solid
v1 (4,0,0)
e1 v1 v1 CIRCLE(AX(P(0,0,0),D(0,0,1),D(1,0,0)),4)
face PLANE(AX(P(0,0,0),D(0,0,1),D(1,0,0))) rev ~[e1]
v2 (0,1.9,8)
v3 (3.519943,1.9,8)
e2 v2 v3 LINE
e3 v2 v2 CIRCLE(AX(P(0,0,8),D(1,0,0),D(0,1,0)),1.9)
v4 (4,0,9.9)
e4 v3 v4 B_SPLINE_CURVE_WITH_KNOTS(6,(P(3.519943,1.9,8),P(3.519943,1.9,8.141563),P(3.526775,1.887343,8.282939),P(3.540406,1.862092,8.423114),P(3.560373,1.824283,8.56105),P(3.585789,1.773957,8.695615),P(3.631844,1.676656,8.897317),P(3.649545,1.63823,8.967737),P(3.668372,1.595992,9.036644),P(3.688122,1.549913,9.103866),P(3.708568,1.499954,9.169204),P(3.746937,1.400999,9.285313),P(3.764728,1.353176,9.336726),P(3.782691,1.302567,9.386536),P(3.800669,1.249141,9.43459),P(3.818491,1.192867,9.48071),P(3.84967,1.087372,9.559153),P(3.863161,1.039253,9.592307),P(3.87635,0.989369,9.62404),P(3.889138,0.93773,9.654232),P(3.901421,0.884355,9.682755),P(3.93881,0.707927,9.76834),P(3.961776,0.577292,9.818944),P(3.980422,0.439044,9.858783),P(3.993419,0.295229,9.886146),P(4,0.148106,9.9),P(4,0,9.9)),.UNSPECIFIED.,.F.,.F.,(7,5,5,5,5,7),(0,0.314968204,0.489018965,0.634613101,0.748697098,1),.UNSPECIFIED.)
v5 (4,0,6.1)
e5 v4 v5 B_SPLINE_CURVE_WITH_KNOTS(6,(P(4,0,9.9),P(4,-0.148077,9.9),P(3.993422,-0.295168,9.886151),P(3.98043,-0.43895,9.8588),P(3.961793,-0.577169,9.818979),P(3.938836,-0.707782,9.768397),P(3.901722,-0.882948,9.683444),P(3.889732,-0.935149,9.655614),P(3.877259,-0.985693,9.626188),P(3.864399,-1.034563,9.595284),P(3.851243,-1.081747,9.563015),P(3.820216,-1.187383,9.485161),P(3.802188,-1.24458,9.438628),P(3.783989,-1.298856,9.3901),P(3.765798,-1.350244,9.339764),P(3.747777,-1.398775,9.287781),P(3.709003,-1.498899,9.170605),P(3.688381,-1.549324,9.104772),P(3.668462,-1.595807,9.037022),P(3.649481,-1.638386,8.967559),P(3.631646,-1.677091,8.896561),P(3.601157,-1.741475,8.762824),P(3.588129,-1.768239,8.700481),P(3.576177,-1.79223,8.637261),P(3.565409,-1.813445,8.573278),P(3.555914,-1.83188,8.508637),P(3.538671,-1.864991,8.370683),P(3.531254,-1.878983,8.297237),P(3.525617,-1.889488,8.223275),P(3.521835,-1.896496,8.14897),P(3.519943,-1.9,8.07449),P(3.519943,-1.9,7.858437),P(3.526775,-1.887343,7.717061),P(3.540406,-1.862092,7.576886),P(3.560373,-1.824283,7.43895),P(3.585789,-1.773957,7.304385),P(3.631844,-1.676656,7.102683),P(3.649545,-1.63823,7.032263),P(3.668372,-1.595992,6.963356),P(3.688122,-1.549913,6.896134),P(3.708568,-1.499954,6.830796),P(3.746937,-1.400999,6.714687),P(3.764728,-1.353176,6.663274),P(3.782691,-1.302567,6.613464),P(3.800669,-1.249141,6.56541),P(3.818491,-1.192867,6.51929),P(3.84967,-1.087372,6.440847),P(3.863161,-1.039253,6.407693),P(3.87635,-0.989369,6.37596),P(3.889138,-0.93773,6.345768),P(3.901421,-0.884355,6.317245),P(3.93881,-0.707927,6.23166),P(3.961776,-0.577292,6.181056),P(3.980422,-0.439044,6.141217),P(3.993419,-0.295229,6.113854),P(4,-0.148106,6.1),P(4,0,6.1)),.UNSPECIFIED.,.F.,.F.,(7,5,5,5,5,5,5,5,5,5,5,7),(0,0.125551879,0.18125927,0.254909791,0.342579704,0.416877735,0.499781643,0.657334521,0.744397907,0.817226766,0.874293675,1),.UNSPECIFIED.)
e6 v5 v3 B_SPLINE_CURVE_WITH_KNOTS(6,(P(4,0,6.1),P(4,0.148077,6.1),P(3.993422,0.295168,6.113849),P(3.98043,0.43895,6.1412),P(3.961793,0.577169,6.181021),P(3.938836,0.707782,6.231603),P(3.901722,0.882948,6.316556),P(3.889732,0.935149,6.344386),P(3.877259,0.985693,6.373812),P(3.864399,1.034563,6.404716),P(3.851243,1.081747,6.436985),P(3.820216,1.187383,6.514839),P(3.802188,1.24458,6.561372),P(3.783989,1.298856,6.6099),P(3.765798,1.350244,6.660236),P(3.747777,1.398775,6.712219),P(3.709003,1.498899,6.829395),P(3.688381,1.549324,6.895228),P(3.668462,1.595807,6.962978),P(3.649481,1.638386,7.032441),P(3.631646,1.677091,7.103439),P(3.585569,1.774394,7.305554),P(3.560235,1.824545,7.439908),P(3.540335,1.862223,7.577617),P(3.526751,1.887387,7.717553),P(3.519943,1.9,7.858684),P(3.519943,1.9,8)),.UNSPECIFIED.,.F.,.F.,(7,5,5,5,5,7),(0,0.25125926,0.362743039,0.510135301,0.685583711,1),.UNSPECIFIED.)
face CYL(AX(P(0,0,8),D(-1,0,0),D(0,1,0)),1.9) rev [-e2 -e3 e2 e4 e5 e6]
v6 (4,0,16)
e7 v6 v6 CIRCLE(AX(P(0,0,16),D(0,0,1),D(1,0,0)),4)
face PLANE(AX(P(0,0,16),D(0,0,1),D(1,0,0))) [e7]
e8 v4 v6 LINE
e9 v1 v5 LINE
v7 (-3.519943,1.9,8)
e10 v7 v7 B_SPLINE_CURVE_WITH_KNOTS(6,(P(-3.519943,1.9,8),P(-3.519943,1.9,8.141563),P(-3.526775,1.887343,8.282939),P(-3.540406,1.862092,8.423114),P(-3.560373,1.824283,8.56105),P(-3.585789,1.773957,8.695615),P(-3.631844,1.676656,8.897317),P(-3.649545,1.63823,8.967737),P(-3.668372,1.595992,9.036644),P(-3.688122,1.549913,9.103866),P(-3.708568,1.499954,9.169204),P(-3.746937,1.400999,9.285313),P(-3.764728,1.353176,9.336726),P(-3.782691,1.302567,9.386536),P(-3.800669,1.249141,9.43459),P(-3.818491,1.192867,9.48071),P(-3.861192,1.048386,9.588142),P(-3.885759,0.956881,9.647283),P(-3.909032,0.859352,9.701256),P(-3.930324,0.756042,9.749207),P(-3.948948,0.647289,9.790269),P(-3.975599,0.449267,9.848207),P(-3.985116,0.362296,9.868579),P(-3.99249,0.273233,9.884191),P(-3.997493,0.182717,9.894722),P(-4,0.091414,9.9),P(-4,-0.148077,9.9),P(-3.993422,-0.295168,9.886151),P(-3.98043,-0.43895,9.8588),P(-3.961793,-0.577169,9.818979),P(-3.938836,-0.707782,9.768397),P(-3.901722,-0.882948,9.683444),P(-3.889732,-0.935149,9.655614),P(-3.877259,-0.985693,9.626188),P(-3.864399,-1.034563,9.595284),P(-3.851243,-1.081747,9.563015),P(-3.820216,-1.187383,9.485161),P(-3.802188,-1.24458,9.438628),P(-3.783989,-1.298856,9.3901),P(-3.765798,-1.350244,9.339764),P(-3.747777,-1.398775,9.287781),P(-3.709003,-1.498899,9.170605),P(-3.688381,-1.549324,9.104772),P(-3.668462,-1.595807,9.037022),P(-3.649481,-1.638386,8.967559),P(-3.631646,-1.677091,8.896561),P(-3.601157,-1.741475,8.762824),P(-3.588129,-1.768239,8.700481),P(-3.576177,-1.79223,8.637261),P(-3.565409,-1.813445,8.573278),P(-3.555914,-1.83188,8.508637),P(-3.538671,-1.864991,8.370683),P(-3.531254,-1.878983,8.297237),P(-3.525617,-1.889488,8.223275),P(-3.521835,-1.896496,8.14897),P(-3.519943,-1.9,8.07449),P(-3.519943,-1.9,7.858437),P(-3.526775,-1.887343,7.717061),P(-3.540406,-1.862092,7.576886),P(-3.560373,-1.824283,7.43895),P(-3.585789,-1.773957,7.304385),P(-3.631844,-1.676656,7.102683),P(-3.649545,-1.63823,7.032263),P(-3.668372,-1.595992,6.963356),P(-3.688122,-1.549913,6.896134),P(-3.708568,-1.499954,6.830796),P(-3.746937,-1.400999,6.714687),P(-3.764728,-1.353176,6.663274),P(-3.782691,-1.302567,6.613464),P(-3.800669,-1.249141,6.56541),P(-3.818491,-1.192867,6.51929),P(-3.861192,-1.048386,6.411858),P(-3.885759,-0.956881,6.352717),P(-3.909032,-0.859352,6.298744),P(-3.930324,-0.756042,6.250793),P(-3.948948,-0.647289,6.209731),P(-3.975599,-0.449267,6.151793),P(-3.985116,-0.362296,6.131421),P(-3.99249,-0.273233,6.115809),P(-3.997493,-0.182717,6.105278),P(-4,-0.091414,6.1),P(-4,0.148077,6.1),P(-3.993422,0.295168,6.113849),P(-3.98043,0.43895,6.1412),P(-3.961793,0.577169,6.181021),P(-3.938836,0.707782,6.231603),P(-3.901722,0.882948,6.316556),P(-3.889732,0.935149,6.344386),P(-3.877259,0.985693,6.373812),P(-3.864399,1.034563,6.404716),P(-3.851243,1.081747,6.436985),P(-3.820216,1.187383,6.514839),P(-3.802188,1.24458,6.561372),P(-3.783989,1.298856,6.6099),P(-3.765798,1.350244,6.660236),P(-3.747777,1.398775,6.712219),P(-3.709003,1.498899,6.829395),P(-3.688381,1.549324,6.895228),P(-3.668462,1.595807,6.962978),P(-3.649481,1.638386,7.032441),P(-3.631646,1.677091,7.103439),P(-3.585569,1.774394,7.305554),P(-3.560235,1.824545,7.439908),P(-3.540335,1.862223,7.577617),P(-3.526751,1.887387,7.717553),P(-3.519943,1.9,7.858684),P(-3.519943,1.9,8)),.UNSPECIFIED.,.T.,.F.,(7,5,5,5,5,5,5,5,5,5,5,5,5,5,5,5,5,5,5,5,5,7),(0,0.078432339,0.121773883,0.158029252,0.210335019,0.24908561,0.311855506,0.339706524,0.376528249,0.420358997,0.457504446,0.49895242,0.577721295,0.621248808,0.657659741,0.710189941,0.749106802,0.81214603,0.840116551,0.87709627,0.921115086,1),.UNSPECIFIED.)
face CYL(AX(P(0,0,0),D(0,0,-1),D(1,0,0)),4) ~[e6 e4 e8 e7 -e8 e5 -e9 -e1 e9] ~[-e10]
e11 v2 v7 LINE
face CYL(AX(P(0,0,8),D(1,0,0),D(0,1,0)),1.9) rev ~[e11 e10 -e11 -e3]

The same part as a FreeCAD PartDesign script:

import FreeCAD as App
import Part
import Sketcher
from FreeCAD import Vector

doc = App.newDocument("Part")
body = doc.addObject("PartDesign::Body", "Body")

# Sketch on XY plane
sketch1 = body.newObject("Sketcher::SketchObject", "Sketch")
sketch1.AttachmentSupport = (doc.getObject("XY_Plane"), [""])
sketch1.MapMode = "FlatFace"
sketch1.addGeometry(Part.Circle(Vector(0, 0, 0), Vector(0, 0, 1), 4), False)
sketch1.addConstraint(Sketcher.Constraint("Coincident", 0, 3, -1, 1))
sketch1.addConstraint(Sketcher.Constraint("Diameter", 0, 8.0))
pad1 = body.newObject("PartDesign::Pad", "Pad")
pad1.Profile = sketch1
pad1.Length = 16

# Sketch on YZ plane
sketch2 = body.newObject("Sketcher::SketchObject", "Sketch001")
sketch2.AttachmentSupport = (doc.getObject("YZ_Plane"), [""])
sketch2.MapMode = "FlatFace"
sketch2.addGeometry(Part.Circle(Vector(0, 8, 0), Vector(0, 0, 1), 1.9), False)
sketch2.addConstraint(Sketcher.Constraint("PointOnObject", 0, 3, -2))
sketch2.addConstraint(Sketcher.Constraint("Diameter", 0, 3.8))
sketch2.addConstraint(Sketcher.Constraint("DistanceY", -1, 1, 0, 3, 8.0))
pocket1 = body.newObject("PartDesign::Pocket", "Pocket")
pocket1.Profile = sketch2
pocket1.Type = "ThroughAll"
pocket1.Midplane = True

doc.recompute()
